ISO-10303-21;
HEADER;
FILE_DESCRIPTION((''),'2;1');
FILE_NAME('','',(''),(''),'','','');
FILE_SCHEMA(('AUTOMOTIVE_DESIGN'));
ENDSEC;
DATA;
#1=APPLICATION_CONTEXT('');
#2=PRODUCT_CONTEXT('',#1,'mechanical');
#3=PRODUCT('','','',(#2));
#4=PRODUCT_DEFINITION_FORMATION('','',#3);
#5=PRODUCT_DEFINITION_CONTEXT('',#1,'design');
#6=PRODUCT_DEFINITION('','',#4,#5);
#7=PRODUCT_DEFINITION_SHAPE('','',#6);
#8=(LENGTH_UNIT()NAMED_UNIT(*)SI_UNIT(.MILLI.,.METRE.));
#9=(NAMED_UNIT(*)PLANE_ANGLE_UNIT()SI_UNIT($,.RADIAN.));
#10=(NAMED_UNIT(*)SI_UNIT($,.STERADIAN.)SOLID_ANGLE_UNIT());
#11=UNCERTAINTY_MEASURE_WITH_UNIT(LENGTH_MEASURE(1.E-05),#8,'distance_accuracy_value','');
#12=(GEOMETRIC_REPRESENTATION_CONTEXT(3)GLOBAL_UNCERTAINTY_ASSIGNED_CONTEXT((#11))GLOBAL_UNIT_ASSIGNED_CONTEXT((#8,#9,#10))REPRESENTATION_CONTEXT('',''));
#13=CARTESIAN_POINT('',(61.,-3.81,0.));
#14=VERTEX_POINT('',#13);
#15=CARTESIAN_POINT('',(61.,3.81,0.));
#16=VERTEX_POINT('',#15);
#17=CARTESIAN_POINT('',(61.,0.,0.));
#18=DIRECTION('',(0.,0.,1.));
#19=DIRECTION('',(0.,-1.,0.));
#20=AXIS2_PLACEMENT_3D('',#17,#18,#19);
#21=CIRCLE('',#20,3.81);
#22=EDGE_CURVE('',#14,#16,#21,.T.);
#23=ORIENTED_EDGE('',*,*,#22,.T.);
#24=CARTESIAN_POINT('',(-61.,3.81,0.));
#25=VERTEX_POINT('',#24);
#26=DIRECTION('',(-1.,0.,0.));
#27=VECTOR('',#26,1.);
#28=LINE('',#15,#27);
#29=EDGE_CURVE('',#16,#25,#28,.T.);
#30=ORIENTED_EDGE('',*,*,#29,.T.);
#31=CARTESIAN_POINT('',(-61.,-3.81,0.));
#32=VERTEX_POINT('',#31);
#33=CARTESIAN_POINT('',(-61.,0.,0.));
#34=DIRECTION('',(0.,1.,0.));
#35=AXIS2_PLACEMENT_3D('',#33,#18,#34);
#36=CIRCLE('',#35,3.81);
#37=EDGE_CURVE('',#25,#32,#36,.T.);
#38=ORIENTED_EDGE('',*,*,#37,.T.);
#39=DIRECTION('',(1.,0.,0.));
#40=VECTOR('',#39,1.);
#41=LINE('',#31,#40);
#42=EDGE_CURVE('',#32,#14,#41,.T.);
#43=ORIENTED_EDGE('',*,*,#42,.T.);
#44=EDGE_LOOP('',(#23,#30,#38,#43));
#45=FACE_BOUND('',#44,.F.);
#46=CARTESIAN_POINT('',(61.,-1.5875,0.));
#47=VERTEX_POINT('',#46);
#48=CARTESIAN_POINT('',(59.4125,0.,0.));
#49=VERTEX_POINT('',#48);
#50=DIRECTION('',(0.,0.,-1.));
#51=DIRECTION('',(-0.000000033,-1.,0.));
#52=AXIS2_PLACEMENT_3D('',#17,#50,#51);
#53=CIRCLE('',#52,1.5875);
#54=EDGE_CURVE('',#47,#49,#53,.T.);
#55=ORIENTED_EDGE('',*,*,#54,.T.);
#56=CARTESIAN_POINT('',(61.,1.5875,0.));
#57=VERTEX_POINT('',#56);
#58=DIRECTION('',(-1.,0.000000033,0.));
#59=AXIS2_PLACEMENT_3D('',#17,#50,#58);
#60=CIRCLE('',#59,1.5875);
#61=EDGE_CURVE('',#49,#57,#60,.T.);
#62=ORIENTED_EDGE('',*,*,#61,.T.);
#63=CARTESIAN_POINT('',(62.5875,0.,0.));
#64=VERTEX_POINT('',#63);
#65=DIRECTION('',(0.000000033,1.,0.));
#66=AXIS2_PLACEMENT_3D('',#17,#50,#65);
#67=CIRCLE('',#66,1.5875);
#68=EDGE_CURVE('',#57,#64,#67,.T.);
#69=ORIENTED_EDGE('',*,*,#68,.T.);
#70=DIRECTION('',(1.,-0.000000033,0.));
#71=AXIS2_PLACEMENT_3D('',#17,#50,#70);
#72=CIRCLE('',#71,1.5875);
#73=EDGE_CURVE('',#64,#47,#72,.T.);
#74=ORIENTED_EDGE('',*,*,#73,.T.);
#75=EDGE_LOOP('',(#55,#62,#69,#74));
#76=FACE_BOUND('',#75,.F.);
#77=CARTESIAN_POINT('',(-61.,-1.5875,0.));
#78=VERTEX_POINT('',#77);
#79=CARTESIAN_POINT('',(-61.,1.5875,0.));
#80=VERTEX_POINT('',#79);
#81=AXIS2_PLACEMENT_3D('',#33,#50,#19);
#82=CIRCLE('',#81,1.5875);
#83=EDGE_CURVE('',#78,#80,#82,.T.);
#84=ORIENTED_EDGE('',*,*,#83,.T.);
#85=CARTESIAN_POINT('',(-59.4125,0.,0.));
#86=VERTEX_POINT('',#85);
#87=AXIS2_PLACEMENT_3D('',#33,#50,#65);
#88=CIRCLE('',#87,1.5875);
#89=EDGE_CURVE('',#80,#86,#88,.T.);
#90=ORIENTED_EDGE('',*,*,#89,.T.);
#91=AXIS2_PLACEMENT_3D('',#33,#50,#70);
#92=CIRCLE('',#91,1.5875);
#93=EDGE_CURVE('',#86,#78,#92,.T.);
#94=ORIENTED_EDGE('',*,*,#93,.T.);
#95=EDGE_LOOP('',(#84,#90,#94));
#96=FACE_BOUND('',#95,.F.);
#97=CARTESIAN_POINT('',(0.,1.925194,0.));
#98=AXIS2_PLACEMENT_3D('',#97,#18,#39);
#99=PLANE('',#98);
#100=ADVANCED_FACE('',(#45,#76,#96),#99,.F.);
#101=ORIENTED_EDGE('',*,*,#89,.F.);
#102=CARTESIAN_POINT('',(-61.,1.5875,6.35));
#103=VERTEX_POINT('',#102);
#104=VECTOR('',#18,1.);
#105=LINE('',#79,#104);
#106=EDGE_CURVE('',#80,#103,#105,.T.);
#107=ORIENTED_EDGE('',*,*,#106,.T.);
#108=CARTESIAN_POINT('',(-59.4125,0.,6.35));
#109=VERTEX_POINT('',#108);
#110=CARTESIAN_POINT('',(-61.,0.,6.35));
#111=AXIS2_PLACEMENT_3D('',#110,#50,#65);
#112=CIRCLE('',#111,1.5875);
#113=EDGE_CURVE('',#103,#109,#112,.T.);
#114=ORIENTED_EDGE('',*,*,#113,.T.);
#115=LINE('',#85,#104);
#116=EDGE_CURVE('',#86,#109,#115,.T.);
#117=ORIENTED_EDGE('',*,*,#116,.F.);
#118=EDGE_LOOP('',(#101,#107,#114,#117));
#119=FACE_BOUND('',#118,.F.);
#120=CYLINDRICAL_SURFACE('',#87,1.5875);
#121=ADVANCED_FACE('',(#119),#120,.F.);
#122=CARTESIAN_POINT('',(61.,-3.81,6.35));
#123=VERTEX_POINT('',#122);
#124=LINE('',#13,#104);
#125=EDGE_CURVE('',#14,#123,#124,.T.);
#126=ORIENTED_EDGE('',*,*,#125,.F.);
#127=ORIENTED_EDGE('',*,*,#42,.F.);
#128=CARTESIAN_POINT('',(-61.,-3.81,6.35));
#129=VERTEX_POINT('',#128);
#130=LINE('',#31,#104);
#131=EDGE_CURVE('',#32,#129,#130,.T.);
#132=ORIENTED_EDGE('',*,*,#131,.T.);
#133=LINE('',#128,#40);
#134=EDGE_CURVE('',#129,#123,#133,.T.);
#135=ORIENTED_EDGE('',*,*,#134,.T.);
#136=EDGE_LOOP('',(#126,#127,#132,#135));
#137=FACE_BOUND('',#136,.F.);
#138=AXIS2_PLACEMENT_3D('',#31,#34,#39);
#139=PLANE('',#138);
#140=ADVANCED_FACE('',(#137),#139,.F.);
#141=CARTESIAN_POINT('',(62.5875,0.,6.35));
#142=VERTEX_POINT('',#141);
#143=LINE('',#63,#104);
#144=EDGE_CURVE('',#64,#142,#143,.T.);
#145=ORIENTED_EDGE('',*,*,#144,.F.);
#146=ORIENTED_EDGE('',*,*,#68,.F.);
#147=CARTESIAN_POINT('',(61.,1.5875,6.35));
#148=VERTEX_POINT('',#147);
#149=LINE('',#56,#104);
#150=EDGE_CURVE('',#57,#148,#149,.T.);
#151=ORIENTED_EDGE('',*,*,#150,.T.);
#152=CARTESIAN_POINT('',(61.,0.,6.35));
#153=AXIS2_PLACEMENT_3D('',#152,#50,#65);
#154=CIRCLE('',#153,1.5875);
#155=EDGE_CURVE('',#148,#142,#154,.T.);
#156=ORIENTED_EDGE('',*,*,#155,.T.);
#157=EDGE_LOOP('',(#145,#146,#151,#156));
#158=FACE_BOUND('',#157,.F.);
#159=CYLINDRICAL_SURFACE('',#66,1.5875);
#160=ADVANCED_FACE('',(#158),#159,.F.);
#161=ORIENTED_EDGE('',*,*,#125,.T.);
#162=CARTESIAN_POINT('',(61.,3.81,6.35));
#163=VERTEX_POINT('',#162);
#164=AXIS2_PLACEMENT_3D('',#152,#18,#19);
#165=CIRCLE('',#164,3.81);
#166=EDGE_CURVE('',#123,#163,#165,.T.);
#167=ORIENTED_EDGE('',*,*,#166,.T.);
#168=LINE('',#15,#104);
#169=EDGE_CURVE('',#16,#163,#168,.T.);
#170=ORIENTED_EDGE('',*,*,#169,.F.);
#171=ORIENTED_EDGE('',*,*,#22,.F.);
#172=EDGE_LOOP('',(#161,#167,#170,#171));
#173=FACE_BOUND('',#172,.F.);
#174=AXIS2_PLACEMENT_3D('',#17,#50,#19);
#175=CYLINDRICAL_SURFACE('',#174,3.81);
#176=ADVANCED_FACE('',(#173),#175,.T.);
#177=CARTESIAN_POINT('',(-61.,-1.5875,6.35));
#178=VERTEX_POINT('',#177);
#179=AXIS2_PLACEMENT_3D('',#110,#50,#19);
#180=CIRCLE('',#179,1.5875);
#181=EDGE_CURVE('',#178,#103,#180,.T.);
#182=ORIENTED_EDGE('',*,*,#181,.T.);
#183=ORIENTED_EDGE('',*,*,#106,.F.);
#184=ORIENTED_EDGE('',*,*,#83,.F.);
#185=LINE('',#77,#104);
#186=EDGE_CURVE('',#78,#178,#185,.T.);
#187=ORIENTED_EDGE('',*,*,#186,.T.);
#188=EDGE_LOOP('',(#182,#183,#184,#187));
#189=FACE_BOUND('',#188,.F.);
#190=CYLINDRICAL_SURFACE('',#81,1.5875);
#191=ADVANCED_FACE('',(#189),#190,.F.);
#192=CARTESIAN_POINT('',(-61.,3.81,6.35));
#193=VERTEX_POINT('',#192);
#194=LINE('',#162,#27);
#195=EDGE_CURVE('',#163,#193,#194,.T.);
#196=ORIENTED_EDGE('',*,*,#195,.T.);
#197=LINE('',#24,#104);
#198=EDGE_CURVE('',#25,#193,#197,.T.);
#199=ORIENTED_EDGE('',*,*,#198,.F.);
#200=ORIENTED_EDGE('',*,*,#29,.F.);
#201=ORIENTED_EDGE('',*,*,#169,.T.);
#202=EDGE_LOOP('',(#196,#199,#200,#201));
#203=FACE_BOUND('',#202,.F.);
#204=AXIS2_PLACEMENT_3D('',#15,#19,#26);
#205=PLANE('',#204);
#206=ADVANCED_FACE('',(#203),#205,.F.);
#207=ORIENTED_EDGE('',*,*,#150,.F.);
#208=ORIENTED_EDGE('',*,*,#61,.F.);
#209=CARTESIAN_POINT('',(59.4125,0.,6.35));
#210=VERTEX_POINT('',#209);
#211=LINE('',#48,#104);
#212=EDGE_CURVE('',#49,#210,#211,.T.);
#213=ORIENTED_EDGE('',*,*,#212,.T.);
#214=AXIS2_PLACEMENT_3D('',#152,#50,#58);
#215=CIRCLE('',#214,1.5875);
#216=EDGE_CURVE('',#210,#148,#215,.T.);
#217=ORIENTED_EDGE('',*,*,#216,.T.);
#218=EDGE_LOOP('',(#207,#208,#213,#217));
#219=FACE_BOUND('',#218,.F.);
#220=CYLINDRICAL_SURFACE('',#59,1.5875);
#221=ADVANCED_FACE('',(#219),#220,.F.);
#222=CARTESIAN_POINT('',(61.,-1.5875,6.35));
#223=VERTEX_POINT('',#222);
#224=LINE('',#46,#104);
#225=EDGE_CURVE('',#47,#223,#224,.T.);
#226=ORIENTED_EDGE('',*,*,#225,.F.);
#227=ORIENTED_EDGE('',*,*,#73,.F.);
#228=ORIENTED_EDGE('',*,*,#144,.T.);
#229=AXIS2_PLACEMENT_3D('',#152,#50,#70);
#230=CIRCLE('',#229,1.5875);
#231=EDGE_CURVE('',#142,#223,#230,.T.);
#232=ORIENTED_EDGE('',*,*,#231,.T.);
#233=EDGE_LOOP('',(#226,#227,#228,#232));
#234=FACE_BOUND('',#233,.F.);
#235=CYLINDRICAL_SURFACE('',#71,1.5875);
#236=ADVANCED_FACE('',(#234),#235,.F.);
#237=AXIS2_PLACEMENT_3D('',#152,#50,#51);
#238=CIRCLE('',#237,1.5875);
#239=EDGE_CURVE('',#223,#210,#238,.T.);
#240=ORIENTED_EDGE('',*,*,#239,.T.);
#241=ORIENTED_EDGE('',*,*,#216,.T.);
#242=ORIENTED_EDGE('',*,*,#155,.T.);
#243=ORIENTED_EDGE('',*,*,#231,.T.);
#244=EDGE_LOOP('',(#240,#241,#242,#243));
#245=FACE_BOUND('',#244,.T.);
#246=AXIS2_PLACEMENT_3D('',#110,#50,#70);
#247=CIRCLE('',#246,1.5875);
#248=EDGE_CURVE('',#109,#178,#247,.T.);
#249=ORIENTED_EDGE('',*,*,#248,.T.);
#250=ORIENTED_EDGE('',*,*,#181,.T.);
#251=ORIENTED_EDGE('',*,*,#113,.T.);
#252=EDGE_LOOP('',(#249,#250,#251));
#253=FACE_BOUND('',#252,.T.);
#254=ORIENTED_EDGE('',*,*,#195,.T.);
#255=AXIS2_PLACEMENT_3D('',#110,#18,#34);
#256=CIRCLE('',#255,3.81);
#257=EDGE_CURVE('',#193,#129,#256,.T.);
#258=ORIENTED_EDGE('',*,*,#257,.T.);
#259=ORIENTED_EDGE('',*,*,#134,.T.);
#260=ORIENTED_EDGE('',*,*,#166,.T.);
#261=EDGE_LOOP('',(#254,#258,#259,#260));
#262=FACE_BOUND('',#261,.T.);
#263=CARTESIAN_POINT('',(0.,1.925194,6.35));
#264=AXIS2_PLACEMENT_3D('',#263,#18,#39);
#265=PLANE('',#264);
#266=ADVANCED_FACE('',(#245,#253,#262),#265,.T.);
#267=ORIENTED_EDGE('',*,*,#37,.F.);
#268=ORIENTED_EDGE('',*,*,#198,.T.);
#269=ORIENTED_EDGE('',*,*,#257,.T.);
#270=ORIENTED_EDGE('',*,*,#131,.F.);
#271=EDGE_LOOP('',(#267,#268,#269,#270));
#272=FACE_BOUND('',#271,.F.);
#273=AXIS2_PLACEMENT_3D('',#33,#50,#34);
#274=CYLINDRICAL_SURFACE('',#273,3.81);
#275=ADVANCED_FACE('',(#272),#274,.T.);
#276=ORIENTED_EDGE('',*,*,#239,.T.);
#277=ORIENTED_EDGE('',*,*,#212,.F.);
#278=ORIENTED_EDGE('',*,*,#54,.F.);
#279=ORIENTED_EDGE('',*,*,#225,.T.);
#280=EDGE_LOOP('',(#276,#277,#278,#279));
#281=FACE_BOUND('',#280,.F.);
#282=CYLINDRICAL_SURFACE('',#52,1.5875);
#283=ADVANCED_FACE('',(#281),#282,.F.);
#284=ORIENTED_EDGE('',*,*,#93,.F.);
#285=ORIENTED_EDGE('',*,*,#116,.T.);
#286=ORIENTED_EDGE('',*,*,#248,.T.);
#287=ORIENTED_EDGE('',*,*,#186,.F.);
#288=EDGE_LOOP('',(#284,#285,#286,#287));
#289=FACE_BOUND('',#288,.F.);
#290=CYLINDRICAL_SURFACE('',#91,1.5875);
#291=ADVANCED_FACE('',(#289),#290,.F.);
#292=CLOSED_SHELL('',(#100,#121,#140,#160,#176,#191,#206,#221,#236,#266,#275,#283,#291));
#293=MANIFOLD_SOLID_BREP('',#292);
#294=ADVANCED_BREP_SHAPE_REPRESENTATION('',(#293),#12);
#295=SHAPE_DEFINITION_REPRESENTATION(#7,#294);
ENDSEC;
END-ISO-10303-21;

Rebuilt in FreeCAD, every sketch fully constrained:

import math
import FreeCAD as App
import Part
import Sketcher
from FreeCAD import Vector
Q = App.Units.Quantity

doc = App.newDocument("Part")
body = doc.addObject("PartDesign::Body", "Body")

# Sketch on XY plane
sketch1 = body.newObject("Sketcher::SketchObject", "Sketch")
sketch1.AttachmentSupport = (doc.getObject("XY_Plane"), [""])
sketch1.MapMode = "FlatFace"
sketch1.addGeometry([
    Part.LineSegment(Vector(-61, -3.8, 0), Vector(61, -3.8, 0)),  # 0
    Part.ArcOfCircle(Part.Circle(Vector(61, 0, 0), Vector(0, 0, 1), 3.8), math.radians(-90), math.radians(90)),  # 1
    Part.LineSegment(Vector(61, 3.8, 0), Vector(-61, 3.8, 0)),  # 2
    Part.ArcOfCircle(Part.Circle(Vector(-61, 0, 0), Vector(0, 0, 1), 3.8), math.radians(90), math.radians(270)),  # 3
    Part.ArcOfCircle(Part.Circle(Vector(-61, 0, 0), Vector(0, 0, 1), 1.6), math.radians(0), math.radians(90)),  # 4
    Part.ArcOfCircle(Part.Circle(Vector(-61, 0, 0), Vector(0, 0, 1), 1.6), math.radians(-90), math.radians(0)),  # 5
    Part.ArcOfCircle(Part.Circle(Vector(-61, 0, 0), Vector(0, 0, 1), 1.6), math.radians(90), math.radians(270)),  # 6
    Part.ArcOfCircle(Part.Circle(Vector(61, 0, 0), Vector(0, 0, 1), 1.6), math.radians(-180), math.radians(-90)),  # 7
    Part.ArcOfCircle(Part.Circle(Vector(61, 0, 0), Vector(0, 0, 1), 1.6), math.radians(90), math.radians(180)),  # 8
    Part.ArcOfCircle(Part.Circle(Vector(61, 0, 0), Vector(0, 0, 1), 1.6), math.radians(0), math.radians(90)),  # 9
    Part.ArcOfCircle(Part.Circle(Vector(61, 0, 0), Vector(0, 0, 1), 1.6), math.radians(-90), math.radians(0)),  # 10
], False)
sketch1.addConstraint([
    Sketcher.Constraint("Tangent", 0, 2, 1, 1),
    Sketcher.Constraint("Tangent", 1, 2, 2, 1),
    Sketcher.Constraint("Tangent", 2, 2, 3, 1),
    Sketcher.Constraint("Tangent", 3, 2, 0, 1),
    Sketcher.Constraint("Tangent", 4, 1, 5, 2),
    Sketcher.Constraint("Tangent", 5, 1, 6, 2),
    Sketcher.Constraint("Tangent", 6, 1, 4, 2),
    Sketcher.Constraint("Tangent", 7, 1, 8, 2),
    Sketcher.Constraint("Tangent", 8, 1, 9, 2),
    Sketcher.Constraint("Tangent", 9, 1, 10, 2),
    Sketcher.Constraint("Tangent", 10, 1, 7, 2),
    Sketcher.Constraint("Horizontal", 0),
    Sketcher.Constraint("Horizontal", 2),
    Sketcher.Constraint("Coincident", 4, 3, 3, 3),
    Sketcher.Constraint("Coincident", 7, 3, 1, 3),
    Sketcher.Constraint("Equal", 6, 7),
    Sketcher.Constraint("Equal", 7, 8),
    Sketcher.Constraint("Symmetric", 1, 3, 3, 3, -1, 1),
    Sketcher.Constraint("PointOnObject", 4, 1, -1),
    Sketcher.Constraint("PointOnObject", 7, 1, -1),
    Sketcher.Constraint("PointOnObject", 9, 1, -1),
    Sketcher.Constraint("Vertical", 3, 2, 5, 1),
    Sketcher.Constraint("Vertical", 5, 1, 6, 1),
    Sketcher.Constraint("Vertical", 1, 2, 8, 1),
    Sketcher.Constraint("Vertical", 8, 1, 10, 1),
    Sketcher.Constraint("Radius", 1, Q("0.15 in")),
    Sketcher.Constraint("Radius", 4, Q("0.0625 in")),
    Sketcher.Constraint("DistanceX", 0, 1, 0, 2, 122.0),
])
pad1 = body.newObject("PartDesign::Pad", "Pad")
pad1.Profile = sketch1
pad1.Length = Q("0.25 in")

doc.recompute()
